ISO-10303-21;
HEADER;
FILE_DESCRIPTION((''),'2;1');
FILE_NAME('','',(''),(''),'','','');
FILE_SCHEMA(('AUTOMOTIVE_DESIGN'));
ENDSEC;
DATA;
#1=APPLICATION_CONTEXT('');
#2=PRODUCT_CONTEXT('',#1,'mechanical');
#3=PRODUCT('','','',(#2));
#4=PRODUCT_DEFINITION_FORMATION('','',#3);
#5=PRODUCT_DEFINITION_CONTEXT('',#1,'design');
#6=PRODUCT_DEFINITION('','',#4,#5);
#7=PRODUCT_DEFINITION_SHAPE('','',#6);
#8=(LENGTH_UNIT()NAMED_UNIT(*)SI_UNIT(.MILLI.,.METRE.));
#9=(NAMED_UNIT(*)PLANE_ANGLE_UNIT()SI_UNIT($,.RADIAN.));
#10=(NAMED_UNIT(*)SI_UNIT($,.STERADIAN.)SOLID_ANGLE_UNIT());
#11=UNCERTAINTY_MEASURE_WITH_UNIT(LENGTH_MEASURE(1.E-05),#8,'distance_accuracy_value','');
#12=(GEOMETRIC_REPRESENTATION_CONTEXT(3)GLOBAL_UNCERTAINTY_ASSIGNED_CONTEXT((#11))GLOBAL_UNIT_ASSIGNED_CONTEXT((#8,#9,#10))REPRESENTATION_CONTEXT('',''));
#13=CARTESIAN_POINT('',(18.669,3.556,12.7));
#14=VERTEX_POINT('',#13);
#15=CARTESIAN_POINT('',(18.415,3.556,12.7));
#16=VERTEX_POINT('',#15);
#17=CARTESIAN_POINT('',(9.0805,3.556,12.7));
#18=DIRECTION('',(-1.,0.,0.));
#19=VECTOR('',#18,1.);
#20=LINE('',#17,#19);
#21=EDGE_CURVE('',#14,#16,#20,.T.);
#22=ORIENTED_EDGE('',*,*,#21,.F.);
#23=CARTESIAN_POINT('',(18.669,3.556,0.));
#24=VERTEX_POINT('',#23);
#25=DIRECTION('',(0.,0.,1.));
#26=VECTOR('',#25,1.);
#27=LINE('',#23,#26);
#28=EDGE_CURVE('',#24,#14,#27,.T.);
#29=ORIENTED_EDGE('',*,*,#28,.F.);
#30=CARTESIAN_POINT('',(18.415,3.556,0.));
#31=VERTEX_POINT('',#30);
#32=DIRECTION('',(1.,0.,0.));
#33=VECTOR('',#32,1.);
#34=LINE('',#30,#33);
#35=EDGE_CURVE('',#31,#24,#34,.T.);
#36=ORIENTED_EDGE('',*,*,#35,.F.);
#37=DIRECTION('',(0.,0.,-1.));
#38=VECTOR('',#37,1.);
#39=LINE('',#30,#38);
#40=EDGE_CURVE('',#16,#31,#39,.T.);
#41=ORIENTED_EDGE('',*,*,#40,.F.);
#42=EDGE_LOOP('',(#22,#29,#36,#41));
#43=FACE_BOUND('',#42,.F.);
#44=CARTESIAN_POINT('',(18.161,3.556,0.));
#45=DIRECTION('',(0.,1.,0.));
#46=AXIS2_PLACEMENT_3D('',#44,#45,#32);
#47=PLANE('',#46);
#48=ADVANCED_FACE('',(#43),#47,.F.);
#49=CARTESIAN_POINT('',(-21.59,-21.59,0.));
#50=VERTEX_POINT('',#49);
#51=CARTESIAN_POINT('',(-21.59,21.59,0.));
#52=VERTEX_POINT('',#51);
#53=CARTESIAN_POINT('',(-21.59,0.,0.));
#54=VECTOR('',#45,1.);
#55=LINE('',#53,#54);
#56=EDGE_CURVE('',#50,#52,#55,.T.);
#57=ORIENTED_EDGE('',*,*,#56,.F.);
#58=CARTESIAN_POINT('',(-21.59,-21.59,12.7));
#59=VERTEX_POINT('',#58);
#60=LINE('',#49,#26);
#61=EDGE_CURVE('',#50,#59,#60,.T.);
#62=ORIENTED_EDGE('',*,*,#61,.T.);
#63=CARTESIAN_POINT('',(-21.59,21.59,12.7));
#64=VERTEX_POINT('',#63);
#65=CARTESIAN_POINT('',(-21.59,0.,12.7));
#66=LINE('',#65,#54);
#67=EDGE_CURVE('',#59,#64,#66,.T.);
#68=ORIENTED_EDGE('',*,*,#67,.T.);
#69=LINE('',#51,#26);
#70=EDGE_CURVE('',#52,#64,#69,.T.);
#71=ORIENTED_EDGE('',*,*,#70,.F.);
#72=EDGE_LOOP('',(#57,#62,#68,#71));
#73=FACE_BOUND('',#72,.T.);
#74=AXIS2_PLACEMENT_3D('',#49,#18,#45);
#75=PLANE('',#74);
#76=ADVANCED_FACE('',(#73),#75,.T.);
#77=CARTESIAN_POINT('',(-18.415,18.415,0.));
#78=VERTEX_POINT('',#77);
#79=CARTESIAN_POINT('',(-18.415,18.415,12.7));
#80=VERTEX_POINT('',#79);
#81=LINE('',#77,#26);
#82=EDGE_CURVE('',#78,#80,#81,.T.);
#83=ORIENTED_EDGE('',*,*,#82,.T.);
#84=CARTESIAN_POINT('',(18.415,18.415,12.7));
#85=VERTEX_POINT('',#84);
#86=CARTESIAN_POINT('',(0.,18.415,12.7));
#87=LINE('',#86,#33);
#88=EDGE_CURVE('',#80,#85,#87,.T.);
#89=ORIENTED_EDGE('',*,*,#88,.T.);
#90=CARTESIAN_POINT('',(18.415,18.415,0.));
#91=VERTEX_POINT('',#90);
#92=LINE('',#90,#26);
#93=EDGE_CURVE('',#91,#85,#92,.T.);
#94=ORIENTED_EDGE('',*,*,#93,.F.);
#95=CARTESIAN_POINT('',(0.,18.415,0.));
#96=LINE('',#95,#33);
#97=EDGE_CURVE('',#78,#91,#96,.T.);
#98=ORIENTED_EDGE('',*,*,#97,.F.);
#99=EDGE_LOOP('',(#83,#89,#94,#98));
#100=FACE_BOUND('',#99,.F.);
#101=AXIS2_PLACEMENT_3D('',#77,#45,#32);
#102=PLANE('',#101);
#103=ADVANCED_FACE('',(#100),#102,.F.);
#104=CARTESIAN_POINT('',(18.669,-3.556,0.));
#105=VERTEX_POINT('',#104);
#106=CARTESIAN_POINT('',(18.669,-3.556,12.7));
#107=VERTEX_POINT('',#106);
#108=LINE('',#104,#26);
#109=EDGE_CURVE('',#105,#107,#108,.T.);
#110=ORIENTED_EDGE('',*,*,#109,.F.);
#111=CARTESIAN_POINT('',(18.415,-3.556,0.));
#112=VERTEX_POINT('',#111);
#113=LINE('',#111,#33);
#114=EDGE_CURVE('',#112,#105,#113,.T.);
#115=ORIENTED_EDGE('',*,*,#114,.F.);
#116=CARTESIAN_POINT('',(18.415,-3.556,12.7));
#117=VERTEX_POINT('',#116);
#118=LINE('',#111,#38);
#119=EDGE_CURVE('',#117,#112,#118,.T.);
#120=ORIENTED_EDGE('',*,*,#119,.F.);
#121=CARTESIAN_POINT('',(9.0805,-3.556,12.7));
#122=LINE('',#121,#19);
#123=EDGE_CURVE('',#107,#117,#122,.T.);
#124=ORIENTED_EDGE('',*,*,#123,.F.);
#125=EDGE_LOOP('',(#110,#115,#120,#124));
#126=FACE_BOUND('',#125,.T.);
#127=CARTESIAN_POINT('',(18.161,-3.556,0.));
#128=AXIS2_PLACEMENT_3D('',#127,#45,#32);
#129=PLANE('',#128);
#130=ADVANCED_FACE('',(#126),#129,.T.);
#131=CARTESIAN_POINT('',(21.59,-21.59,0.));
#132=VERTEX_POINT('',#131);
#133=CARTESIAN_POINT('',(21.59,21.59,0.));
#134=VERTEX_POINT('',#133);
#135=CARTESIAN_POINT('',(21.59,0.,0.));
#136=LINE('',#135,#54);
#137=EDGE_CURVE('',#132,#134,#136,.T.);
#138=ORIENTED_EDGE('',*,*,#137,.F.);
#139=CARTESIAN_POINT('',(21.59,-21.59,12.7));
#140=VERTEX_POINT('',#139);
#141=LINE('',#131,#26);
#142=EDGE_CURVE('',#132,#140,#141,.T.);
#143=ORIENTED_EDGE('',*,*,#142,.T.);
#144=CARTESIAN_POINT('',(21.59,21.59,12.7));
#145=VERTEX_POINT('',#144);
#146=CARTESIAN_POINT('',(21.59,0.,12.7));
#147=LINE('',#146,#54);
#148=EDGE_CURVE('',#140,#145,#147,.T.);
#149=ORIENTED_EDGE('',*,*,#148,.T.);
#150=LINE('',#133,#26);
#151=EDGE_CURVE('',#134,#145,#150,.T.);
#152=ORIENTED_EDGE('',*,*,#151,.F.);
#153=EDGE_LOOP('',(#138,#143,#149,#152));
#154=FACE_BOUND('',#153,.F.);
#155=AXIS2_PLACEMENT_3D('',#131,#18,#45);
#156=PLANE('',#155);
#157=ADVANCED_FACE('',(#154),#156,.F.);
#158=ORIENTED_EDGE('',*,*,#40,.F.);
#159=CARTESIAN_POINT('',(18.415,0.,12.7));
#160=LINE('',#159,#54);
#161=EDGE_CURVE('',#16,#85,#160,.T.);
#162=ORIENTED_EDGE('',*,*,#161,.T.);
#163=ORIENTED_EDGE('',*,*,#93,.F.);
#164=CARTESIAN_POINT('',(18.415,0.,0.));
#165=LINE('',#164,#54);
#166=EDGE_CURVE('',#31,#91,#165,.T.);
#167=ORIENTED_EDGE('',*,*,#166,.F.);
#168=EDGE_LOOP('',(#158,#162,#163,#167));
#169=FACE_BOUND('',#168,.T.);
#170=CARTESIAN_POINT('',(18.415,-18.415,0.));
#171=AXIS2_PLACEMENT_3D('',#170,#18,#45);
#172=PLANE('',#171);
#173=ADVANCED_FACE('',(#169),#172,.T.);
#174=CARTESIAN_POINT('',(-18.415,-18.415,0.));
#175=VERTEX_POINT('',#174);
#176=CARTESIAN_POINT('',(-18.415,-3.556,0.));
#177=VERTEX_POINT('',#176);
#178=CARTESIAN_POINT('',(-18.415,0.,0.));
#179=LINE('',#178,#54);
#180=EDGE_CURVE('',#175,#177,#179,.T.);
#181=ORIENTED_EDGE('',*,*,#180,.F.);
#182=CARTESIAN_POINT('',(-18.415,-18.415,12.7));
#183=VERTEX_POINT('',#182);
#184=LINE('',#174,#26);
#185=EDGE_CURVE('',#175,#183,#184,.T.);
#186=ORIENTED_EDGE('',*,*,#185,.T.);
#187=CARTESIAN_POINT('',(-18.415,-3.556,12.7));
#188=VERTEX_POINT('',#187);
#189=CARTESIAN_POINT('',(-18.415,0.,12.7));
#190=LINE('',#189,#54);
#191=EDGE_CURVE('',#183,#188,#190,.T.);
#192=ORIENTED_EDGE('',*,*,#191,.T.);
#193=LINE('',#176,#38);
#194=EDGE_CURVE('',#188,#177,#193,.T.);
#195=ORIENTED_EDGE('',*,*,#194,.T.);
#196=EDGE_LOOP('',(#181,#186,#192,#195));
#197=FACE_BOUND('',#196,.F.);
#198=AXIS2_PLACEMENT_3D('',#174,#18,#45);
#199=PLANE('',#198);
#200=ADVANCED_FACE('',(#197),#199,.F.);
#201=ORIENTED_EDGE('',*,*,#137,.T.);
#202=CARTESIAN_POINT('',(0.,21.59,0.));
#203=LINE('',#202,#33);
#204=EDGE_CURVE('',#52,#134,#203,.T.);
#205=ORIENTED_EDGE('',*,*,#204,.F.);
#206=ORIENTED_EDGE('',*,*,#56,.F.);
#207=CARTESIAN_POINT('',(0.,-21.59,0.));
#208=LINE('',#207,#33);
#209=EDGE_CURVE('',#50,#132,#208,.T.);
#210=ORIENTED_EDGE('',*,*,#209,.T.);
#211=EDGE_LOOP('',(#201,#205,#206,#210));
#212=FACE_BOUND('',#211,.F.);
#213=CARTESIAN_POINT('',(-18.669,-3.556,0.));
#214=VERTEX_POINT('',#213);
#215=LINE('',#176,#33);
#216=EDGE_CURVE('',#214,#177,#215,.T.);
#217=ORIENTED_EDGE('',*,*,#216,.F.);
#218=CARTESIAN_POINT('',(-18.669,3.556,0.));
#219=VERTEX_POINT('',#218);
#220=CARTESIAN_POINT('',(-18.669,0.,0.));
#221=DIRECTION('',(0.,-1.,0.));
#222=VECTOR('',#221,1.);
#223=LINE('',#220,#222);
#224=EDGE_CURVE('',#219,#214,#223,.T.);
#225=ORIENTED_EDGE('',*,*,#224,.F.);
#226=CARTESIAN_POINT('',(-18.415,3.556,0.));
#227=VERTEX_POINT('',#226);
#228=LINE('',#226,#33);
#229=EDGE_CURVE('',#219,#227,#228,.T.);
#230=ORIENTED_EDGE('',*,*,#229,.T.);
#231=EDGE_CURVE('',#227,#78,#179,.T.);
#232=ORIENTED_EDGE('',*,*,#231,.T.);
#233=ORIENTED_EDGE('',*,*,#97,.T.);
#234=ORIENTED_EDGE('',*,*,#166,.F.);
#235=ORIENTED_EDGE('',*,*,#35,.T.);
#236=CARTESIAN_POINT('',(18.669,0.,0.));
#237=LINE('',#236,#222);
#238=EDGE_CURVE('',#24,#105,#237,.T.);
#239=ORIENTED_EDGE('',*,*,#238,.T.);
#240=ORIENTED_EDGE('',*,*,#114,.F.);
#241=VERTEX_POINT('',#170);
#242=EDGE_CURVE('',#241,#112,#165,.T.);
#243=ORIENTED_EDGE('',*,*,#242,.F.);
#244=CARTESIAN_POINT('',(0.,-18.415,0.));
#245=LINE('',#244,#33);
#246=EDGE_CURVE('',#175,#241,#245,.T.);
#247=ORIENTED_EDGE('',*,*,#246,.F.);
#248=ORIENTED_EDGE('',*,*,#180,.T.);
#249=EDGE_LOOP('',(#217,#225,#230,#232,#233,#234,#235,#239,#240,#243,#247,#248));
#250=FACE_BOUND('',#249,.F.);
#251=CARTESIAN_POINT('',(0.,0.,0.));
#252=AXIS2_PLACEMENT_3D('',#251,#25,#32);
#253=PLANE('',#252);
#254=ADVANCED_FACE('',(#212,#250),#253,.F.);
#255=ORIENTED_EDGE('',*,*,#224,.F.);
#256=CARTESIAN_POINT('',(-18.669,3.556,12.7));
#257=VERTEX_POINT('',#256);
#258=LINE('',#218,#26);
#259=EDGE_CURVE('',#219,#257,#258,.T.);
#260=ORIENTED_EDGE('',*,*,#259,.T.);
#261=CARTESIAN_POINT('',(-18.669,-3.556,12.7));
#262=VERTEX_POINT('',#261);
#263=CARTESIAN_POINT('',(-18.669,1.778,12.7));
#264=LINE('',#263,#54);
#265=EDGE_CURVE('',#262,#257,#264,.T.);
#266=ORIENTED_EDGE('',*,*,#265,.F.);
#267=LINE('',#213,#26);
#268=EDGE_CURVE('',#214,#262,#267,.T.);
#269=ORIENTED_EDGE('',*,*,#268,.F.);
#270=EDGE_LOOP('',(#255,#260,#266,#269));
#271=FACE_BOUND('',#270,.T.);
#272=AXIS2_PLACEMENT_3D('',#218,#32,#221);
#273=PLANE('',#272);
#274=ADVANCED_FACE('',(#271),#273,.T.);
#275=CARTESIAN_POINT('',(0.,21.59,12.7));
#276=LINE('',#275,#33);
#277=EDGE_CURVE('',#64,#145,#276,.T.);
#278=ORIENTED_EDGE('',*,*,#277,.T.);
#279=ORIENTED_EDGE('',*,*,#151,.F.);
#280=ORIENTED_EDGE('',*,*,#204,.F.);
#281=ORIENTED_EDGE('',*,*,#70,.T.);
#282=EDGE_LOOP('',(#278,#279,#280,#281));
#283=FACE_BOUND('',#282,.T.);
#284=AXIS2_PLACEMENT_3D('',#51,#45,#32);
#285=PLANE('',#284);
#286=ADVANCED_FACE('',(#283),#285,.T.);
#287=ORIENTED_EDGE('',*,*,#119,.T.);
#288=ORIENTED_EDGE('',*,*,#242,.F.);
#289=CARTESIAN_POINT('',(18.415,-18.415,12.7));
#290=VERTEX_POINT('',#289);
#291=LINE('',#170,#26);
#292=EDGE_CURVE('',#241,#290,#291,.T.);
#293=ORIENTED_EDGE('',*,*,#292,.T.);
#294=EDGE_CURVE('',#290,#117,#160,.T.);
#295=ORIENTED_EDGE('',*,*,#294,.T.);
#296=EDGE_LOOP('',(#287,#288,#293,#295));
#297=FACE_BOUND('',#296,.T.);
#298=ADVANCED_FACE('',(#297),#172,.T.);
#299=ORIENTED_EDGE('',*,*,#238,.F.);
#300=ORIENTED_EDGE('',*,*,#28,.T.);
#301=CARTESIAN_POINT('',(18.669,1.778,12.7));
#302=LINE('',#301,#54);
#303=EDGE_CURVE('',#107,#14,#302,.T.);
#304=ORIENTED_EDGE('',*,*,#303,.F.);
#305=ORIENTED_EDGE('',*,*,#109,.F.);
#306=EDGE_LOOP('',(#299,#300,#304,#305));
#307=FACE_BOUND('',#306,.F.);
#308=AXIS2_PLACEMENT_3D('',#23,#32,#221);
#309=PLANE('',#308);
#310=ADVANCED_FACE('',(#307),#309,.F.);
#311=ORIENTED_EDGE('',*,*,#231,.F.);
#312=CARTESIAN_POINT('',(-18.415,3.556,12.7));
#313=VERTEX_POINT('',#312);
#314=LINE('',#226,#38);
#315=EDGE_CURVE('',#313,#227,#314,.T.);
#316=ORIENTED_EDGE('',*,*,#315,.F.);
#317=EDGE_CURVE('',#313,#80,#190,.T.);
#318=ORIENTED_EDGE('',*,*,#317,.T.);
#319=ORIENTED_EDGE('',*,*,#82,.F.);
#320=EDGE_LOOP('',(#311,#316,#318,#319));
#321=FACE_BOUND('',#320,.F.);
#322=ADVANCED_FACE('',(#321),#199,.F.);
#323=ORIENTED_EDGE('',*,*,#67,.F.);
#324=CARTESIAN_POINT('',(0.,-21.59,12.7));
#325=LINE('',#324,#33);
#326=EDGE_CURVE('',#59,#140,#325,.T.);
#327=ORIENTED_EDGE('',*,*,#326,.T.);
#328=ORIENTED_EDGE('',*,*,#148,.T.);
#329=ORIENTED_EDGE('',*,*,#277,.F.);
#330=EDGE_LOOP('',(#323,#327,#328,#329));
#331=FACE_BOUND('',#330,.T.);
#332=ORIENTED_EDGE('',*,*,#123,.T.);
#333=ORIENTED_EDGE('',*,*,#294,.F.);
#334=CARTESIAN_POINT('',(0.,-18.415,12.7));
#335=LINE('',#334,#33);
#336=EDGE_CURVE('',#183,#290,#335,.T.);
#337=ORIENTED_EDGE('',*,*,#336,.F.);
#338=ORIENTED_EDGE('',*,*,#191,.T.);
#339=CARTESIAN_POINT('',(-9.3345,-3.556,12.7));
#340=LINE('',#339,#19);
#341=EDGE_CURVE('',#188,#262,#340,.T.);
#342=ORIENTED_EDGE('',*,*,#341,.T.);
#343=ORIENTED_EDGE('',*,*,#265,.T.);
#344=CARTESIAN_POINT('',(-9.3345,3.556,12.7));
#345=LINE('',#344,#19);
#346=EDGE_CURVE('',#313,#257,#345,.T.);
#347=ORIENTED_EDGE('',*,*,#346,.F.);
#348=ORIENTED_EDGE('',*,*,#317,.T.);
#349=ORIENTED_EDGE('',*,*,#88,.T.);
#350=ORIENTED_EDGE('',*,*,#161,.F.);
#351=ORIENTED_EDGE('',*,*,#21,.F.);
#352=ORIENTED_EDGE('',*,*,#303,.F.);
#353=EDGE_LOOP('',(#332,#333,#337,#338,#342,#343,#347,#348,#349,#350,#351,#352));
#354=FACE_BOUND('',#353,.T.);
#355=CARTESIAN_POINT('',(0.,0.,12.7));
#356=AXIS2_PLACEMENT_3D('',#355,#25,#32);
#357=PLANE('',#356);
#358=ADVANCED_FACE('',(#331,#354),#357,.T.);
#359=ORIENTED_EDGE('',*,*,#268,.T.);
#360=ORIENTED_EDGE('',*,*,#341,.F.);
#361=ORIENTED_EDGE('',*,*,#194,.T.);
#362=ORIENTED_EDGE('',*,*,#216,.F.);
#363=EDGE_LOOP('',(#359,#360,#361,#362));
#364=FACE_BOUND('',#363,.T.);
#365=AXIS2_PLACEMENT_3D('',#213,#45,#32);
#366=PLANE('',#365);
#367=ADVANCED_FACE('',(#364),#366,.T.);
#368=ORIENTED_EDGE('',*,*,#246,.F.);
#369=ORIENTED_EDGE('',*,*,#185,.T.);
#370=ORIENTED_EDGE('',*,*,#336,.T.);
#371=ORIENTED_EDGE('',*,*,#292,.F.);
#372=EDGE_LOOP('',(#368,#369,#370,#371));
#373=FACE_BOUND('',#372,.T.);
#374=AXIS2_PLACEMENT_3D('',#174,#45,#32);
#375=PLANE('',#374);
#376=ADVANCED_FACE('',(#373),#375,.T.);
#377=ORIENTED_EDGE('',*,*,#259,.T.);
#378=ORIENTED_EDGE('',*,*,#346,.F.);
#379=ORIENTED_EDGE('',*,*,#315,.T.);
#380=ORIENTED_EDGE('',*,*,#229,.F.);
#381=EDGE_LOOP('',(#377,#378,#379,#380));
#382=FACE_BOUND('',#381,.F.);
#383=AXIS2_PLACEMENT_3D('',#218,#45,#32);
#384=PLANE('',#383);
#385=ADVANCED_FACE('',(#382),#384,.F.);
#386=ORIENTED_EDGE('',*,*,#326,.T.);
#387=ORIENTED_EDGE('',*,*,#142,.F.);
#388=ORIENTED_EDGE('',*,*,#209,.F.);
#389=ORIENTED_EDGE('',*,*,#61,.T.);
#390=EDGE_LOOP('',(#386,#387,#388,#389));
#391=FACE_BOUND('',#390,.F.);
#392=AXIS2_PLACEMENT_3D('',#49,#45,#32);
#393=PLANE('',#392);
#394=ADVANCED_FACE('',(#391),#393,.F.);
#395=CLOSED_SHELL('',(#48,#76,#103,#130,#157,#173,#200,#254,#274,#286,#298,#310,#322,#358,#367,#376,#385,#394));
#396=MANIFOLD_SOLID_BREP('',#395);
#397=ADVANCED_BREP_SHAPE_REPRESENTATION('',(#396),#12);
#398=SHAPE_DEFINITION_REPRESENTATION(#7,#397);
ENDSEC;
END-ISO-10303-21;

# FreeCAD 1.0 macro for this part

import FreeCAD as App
import Part
import Sketcher

V = App.Vector
Q = App.Units.Quantity


def add_polygon(sketch, points):
    """Adds a closed chain of lines whose ends are joined by coincident constraints."""
    first, n = sketch.GeometryCount, len(points)
    for a, b in zip(points, points[1:] + points[:1]):
        sketch.addGeometry(Part.LineSegment(App.Vector(*a, 0), App.Vector(*b, 0)), False)
    for i in range(n):
        sketch.addConstraint(Sketcher.Constraint("Coincident", first + i, 2, first + (i + 1) % n, 1))

doc = App.newDocument("Part")
body = doc.addObject("PartDesign::Body", "Body")

# Sketch on XY plane
sketch1 = body.newObject("Sketcher::SketchObject", "Sketch")
sketch1.AttachmentSupport = (doc.getObject("XY_Plane"), [""])
sketch1.MapMode = "FlatFace"
add_polygon(sketch1, [(-22, 22), (-22, -22), (22, -22), (22, 22)])  # lines 0-3
add_polygon(sketch1, [(18, -18), (-18, -18), (-18, 18), (18, 18)])  # lines 4-7
sketch1.addConstraint(Sketcher.Constraint("Vertical", 0))
sketch1.addConstraint(Sketcher.Constraint("Horizontal", 1))
sketch1.addConstraint(Sketcher.Constraint("Vertical", 2))
sketch1.addConstraint(Sketcher.Constraint("Horizontal", 3))
sketch1.addConstraint(Sketcher.Constraint("Horizontal", 4))
sketch1.addConstraint(Sketcher.Constraint("Vertical", 5))
sketch1.addConstraint(Sketcher.Constraint("Horizontal", 6))
sketch1.addConstraint(Sketcher.Constraint("Vertical", 7))
sketch1.addConstraint(Sketcher.Constraint("Symmetric", 0, 2, 2, 2, -1, 1))
sketch1.addConstraint(Sketcher.Constraint("Symmetric", 4, 2, 6, 2, -1, 1))
sketch1.addConstraint(Sketcher.Constraint("Equal", 3, 0))
sketch1.addConstraint(Sketcher.Constraint("Equal", 6, 5))
sketch1.addConstraint(Sketcher.Constraint("DistanceX", 1, 1, 1, 2, Q("1.7 in")))
sketch1.addConstraint(Sketcher.Constraint("DistanceX", 4, 2, 4, 1, Q("1.45 in")))
pad1 = body.newObject("PartDesign::Pad", "Pad")
pad1.Profile = sketch1
pad1.Length = Q("0.5 in")

# Sketch on XY plane
sketch2 = body.newObject("Sketcher::SketchObject", "Sketch001")
sketch2.AttachmentSupport = (doc.getObject("XY_Plane"), [""])
sketch2.MapMode = "FlatFace"
add_polygon(sketch2, [(18.2, -3.6), (18.2, 3.6), (18.7, 3.6), (18.7, -3.6)])  # lines 0-3
add_polygon(sketch2, [(-18.7, -3.6), (-18.7, 3.6), (-18.2, 3.6), (-18.2, -3.6)])  # lines 4-7
sketch2.addConstraint(Sketcher.Constraint("Vertical", 0))
sketch2.addConstraint(Sketcher.Constraint("Horizontal", 1))
sketch2.addConstraint(Sketcher.Constraint("Vertical", 2))
sketch2.addConstraint(Sketcher.Constraint("Horizontal", 3))
sketch2.addConstraint(Sketcher.Constraint("Vertical", 4))
sketch2.addConstraint(Sketcher.Constraint("Horizontal", 5))
sketch2.addConstraint(Sketcher.Constraint("Vertical", 6))
sketch2.addConstraint(Sketcher.Constraint("Horizontal", 7))
sketch2.addConstraint(Sketcher.Constraint("Symmetric", 2, 2, 4, 2, -1, 1))
sketch2.addConstraint(Sketcher.Constraint("Symmetric", 0, 2, 6, 2, -1, 1))
sketch2.addConstraint(Sketcher.Constraint("Horizontal", 1, 2, 4, 2))
sketch2.addConstraint(Sketcher.Constraint("DistanceX", 1, 1, 1, 2, Q("0.02 in")))
sketch2.addConstraint(Sketcher.Constraint("DistanceY", 0, 1, 0, 2, Q("0.28 in")))
sketch2.addConstraint(Sketcher.Constraint("DistanceX", 4, 2, 0, 2, Q("1.45 in")))
pocket1 = body.newObject("PartDesign::Pocket", "Pocket")
pocket1.Profile = sketch2
pocket1.Type = "ThroughAll"
pocket1.Reversed = True

doc.recompute()
